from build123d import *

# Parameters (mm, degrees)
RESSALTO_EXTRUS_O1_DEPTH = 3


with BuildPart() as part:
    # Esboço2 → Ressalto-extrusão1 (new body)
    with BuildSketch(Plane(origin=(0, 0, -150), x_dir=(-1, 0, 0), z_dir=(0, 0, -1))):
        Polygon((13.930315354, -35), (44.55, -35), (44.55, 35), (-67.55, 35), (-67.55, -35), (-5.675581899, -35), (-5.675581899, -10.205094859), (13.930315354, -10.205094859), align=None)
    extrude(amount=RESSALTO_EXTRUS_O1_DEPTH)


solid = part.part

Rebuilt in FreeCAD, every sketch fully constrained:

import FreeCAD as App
import Part
import Sketcher


def add_polygon(sketch, points):
    """Adds a closed chain of lines whose ends are joined by coincident constraints."""
    first, n = sketch.GeometryCount, len(points)
    for a, b in zip(points, points[1:] + points[:1]):
        sketch.addGeometry(Part.LineSegment(App.Vector(*a, 0), App.Vector(*b, 0)), False)
    for i in range(n):
        sketch.addConstraint(Sketcher.Constraint("Coincident", first + i, 2, first + (i + 1) % n, 1))

doc = App.newDocument("Part")
body = doc.addObject("PartDesign::Body", "Body")

sketch1 = body.newObject("Sketcher::SketchObject", "Sketch")
sketch1.AttachmentSupport = (doc.getObject("XY_Plane"), [""])
sketch1.MapMode = "FlatFace"
sketch1.AttachmentOffset = App.Placement(App.Vector(0, 0, -150), App.Rotation())
add_polygon(sketch1, [(-13.930315, -35), (-44.55, -35), (-44.55, 35), (67.55, 35), (67.55, -35), (5.675582, -35), (5.675582, -10.205095), (-13.930315, -10.205095)])
sketch1.addConstraint([
    Sketcher.Constraint("Horizontal", 0),
    Sketcher.Constraint("Vertical", 1),
    Sketcher.Constraint("Horizontal", 2),
    Sketcher.Constraint("Vertical", 3),
    Sketcher.Constraint("Horizontal", 4),
    Sketcher.Constraint("Vertical", 5),
    Sketcher.Constraint("Horizontal", 6),
    Sketcher.Constraint("Vertical", 7),
    Sketcher.Constraint("Horizontal", 0, 2, 3, 2),
    Sketcher.Constraint("DistanceY", 1, 1, 1, 2, 70.0),
    Sketcher.Constraint("DistanceX", 2, 1, 2, 2, 112.1),
    Sketcher.Constraint("DistanceY", 0, 2, -1, 1, 35.0),
    Sketcher.Constraint("DistanceX", 0, 2, -1, 1, 44.55),
    Sketcher.Constraint("DistanceX", 4, 2, 4, 1, 61.874418),
    Sketcher.Constraint("DistanceX", 0, 2, 0, 1, 30.619685),
    Sketcher.Constraint("DistanceY", 5, 1, 5, 2, 24.794905),
])
pad1 = body.newObject("PartDesign::Pad", "Pad")
pad1.Profile = sketch1
pad1.Length = 3
pad1.Reversed = True

doc.recompute()
